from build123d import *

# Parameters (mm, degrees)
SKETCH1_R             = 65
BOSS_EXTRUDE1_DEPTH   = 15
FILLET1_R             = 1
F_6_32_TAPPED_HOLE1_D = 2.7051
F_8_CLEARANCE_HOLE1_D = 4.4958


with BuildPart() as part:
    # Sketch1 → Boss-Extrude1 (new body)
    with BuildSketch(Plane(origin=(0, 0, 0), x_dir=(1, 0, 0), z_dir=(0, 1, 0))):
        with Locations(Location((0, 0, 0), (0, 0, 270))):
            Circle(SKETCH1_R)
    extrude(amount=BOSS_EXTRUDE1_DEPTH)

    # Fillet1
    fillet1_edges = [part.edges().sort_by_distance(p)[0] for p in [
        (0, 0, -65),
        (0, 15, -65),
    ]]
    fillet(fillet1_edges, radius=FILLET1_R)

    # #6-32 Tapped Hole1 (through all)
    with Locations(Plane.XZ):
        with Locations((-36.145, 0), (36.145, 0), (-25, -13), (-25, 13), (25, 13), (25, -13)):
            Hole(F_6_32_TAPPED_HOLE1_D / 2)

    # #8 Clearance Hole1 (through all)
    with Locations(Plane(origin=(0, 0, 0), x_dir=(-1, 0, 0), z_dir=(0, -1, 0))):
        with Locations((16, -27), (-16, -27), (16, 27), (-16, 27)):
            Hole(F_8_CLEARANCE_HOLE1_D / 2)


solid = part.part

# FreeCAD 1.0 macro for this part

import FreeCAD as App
import Part
import Sketcher

V = App.Vector


def edges_at(feature, points):
    """Names of the edges that pass closest to the given points."""
    edges = feature.Shape.Edges
    near = lambda p: min(range(len(edges)), key=lambda i: edges[i].distToShape(Part.Vertex(*p))[0])
    return sorted({f"Edge{near(p) + 1}" for p in points})

doc = App.newDocument("Part")
params = doc.addObject("Spreadsheet::Sheet", "Params")
for row, (alias, value) in enumerate([
    ("sketch1_diameter", "130 mm"),
    ("pad1_length", "15 mm"),
    ("fillet_radius", "1 mm"),
    ("hole_diameter", "2.7051 mm"),
    ("hole2_diameter", "4.4958 mm"),
], start=1):
    params.set(f"A{row}", alias)
    params.set(f"B{row}", "=" + value)
    params.setAlias(f"B{row}", alias)

body = doc.addObject("PartDesign::Body", "Body")

sketch1 = body.newObject("Sketcher::SketchObject", "Sketch")
sketch1.AttachmentSupport = (doc.getObject("XZ_Plane"), [""])
sketch1.MapMode = "FlatFace"
sketch1.addGeometry(Part.Circle(V(0, 0, 0), V(0, 0, 1), 65), False)
sketch1.addConstraint([
    Sketcher.Constraint("Coincident", 0, 3, -1, 1),
    Sketcher.Constraint("Diameter", 0, 130.0),
])
sketch1.setExpression("Constraints[1]", "Params.sketch1_diameter")
pad1 = body.newObject("PartDesign::Pad", "Pad")
pad1.Profile = sketch1
pad1.setExpression("Length", "Params.pad1_length")
pad1.Reversed = True
doc.recompute()

fillet = body.newObject("PartDesign::Fillet", "Fillet")
fillet.Base = (pad1, edges_at(pad1, [(0, 0, -65), (0, 15, -65)]))
fillet.setExpression("Radius", "Params.fillet_radius")

sketch2 = body.newObject("Sketcher::SketchObject", "Sketch001")
sketch2.AttachmentSupport = (doc.getObject("XZ_Plane"), [""])
sketch2.MapMode = "FlatFace"
sketch2.addGeometry([
    Part.Circle(V(-36.145, 0, 0), V(0, 0, 1), 1.35255),
    Part.Circle(V(36.145, 0, 0), V(0, 0, 1), 1.35255),
    Part.Circle(V(-25, -13, 0), V(0, 0, 1), 1.35255),
    Part.Circle(V(-25, 13, 0), V(0, 0, 1), 1.35255),
    Part.Circle(V(25, 13, 0), V(0, 0, 1), 1.35255),
    Part.Circle(V(25, -13, 0), V(0, 0, 1), 1.35255),
], False)
sketch2.addConstraint([
    Sketcher.Constraint("Equal", 0, 1),
    Sketcher.Constraint("Equal", 1, 2),
    Sketcher.Constraint("Equal", 2, 3),
    Sketcher.Constraint("Equal", 3, 4),
    Sketcher.Constraint("Equal", 4, 5),
    Sketcher.Constraint("Symmetric", 0, 3, 1, 3, -1, 1),
    Sketcher.Constraint("Symmetric", 2, 3, 4, 3, -1, 1),
    Sketcher.Constraint("Symmetric", 3, 3, 5, 3, -1, 1),
    Sketcher.Constraint("Symmetric", 3, 3, 4, 3, -2),
    Sketcher.Constraint("PointOnObject", 0, 3, -1),
    Sketcher.Constraint("DistanceX", 2, 3, -1, 1, 25.0),
    Sketcher.Constraint("DistanceY", 2, 3, -1, 1, 13.0),
    Sketcher.Constraint("Diameter", 0, 2.7051),
    Sketcher.Constraint("DistanceX", 0, 3, 1, 3, 72.29),
])
doc.recompute()
hole = body.newObject("PartDesign::Hole", "Hole")
hole.Profile = sketch2
hole.ThreadType = "None"
hole.setExpression("Diameter", "Params.hole_diameter")
hole.DepthType = "ThroughAll"

sketch3 = body.newObject("Sketcher::SketchObject", "Sketch002")
sketch3.AttachmentSupport = (doc.getObject("XZ_Plane"), [""])
sketch3.MapMode = "FlatFace"
sketch3.addGeometry([
    Part.Circle(V(-16, 27, 0), V(0, 0, 1), 2.2479),
    Part.Circle(V(16, 27, 0), V(0, 0, 1), 2.2479),
    Part.Circle(V(-16, -27, 0), V(0, 0, 1), 2.2479),
    Part.Circle(V(16, -27, 0), V(0, 0, 1), 2.2479),
], False)
sketch3.addConstraint([
    Sketcher.Constraint("Equal", 0, 1),
    Sketcher.Constraint("Equal", 1, 2),
    Sketcher.Constraint("Equal", 2, 3),
    Sketcher.Constraint("Symmetric", 1, 3, 2, 3, -1, 1),
    Sketcher.Constraint("Symmetric", 0, 3, 3, 3, -1, 1),
    Sketcher.Constraint("Symmetric", 0, 3, 1, 3, -2),
    Sketcher.Constraint("DistanceX", 0, 3, -1, 1, 16.0),
    Sketcher.Constraint("DistanceY", -1, 1, 0, 3, 27.0),
    Sketcher.Constraint("Diameter", 0, 4.4958),
])
doc.recompute()
hole2 = body.newObject("PartDesign::Hole", "Hole001")
hole2.Profile = sketch3
hole2.ThreadType = "None"
hole2.setExpression("Diameter", "Params.hole2_diameter")
hole2.DepthType = "ThroughAll"

doc.recompute()
